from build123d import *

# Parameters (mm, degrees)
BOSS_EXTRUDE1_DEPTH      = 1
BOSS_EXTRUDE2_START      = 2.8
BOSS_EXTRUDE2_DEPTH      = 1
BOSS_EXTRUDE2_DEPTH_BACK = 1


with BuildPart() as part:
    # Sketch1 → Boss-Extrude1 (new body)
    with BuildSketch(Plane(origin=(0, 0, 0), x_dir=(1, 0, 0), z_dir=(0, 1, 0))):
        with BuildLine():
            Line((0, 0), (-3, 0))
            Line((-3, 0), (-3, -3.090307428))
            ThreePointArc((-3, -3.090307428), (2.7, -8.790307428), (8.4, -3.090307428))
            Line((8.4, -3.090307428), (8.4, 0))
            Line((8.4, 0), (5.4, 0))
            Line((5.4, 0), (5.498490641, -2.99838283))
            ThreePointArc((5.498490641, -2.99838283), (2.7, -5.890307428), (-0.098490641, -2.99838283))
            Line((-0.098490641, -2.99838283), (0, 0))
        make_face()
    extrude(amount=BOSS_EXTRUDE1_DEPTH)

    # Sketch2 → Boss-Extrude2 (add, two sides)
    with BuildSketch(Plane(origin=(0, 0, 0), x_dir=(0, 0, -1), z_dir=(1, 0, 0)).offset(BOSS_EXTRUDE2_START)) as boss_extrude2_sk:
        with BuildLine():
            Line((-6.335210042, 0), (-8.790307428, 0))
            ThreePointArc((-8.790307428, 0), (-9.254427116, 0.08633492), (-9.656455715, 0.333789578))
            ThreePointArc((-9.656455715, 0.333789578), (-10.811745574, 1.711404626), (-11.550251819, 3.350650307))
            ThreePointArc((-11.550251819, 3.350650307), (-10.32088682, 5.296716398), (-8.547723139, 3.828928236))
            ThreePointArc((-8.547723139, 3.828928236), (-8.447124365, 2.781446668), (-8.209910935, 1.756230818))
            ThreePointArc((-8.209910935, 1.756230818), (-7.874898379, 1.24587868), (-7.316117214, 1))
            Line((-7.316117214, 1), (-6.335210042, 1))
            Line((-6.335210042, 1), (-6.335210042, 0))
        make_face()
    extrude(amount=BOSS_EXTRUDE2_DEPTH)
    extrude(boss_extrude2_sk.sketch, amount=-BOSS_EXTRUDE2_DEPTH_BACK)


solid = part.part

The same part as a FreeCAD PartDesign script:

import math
import FreeCAD as App
import Part
import Sketcher
Q = App.Units.Quantity

doc = App.newDocument("Part")
body = doc.addObject("PartDesign::Body", "Body")

sketch1 = body.newObject("Sketcher::SketchObject", "Sketch")
sketch1.AttachmentSupport = (doc.getObject("XZ_Plane"), [""])
sketch1.MapMode = "FlatFace"
sketch1.addGeometry([
    Part.LineSegment(App.Vector(0, 0, 0), App.Vector(-3, 0, 0)),
    Part.LineSegment(App.Vector(-3, 0, 0), App.Vector(-3, 3.1, 0)),
    Part.ArcOfCircle(Part.Circle(App.Vector(2.7, 3.1, 0), App.Vector(0, 0, 1), 5.7), math.radians(0), math.radians(180)),
    Part.LineSegment(App.Vector(8.4, 3.1, 0), App.Vector(8.4, 0, 0)),
    Part.LineSegment(App.Vector(8.4, 0, 0), App.Vector(5.4, 0, 0)),
    Part.LineSegment(App.Vector(5.4, 0, 0), App.Vector(5.5, 3, 0)),
    Part.ArcOfCircle(Part.Circle(App.Vector(2.7, 3.1, 0), App.Vector(0, 0, 1), 2.8), math.radians(-2), math.radians(182)),
    Part.LineSegment(App.Vector(-0.1, 3, 0), App.Vector(0, 0, 0)),
], False)
sketch1.addConstraint([
    Sketcher.Constraint("Coincident", 0, 2, 1, 1),
    Sketcher.Constraint("Tangent", 1, 2, 2, 2),
    Sketcher.Constraint("Tangent", 2, 1, 3, 1),
    Sketcher.Constraint("Coincident", 3, 2, 4, 1),
    Sketcher.Constraint("Coincident", 4, 2, 5, 1),
    Sketcher.Constraint("Tangent", 5, 2, 6, 1),
    Sketcher.Constraint("Tangent", 6, 2, 7, 1),
    Sketcher.Constraint("Coincident", 7, 2, 0, 1),
    Sketcher.Constraint("Horizontal", 0),
    Sketcher.Constraint("Vertical", 1),
    Sketcher.Constraint("Vertical", 3),
    Sketcher.Constraint("Horizontal", 4),
    Sketcher.Constraint("Coincident", 7, 2, -1, 1),
    Sketcher.Constraint("Coincident", 6, 3, 2, 3),
    Sketcher.Constraint("PointOnObject", 3, 2, -1),
    Sketcher.Constraint("Horizontal", 5, 2, 6, 2),
    Sketcher.Constraint("Radius", 2, Q("5.7 mm")),
    Sketcher.Constraint("Radius", 6, Q("2.8 mm")),
    Sketcher.Constraint("DistanceX", 0, 2, 0, 1, Q("3 mm")),
    Sketcher.Constraint("Distance", 5, Q("3 mm")),
])
pad1 = body.newObject("PartDesign::Pad", "Pad")
pad1.Profile = sketch1
pad1.Length = 1
pad1.Reversed = True

sketch2 = body.newObject("Sketcher::SketchObject", "Sketch001")
sketch2.AttachmentSupport = (doc.getObject("YZ_Plane"), [""])
sketch2.MapMode = "FlatFace"
sketch2.AttachmentOffset = App.Placement(App.Vector(0, 0, 2.8), App.Rotation())
sketch2.addGeometry([
    Part.LineSegment(App.Vector(0, 8.8, 0), App.Vector(0, 6.3, 0)),
    Part.LineSegment(App.Vector(0, 6.3, 0), App.Vector(1, 6.3, 0)),
    Part.LineSegment(App.Vector(1, 6.3, 0), App.Vector(1, 7.3, 0)),
    Part.ArcOfCircle(Part.Circle(App.Vector(2.1, 7.2, 0), App.Vector(0, 0, 1), 1.1), math.radians(107), math.radians(173)),
    Part.ArcOfCircle(Part.Circle(App.Vector(4.1, 0.6, 0), App.Vector(0, 0, 1), 8), math.radians(91.71), math.radians(106.8)),
    Part.ArcOfCircle(Part.Circle(App.Vector(3.8, 10.1, 0), App.Vector(0, 0, 1), 1.5), math.radians(-88), math.radians(106)),
    Part.ArcOfCircle(Part.Circle(App.Vector(5.2, 5.2, 0), App.Vector(0, 0, 1), 6.6), math.radians(106), math.radians(138)),
    Part.ArcOfCircle(Part.Circle(App.Vector(1.3, 8.8, 0), App.Vector(0, 0, 1), 1.3), math.radians(138), math.radians(180)),
], False)
sketch2.addConstraint([
    Sketcher.Constraint("Coincident", 0, 2, 1, 1),
    Sketcher.Constraint("Coincident", 1, 2, 2, 1),
    Sketcher.Constraint("Coincident", 2, 2, 3, 2),
    Sketcher.Constraint("Tangent", 3, 1, 4, 2),
    Sketcher.Constraint("Tangent", 4, 1, 5, 1),
    Sketcher.Constraint("Tangent", 5, 2, 6, 1),
    Sketcher.Constraint("Tangent", 6, 2, 7, 1),
    Sketcher.Constraint("Tangent", 7, 2, 0, 1),
    Sketcher.Constraint("Vertical", 0),
    Sketcher.Constraint("Horizontal", 1),
    Sketcher.Constraint("Vertical", 2),
    Sketcher.Constraint("PointOnObject", 0, 2, -2),
    Sketcher.Constraint("Radius", 4, Q("8 mm")),
    Sketcher.Constraint("DistanceX", 1, 1, 1, 2, Q("1 mm")),
    Sketcher.Constraint("Radius", 3, Q("1.075788 mm")),
    Sketcher.Constraint("Radius", 5, Q("1.532738 mm")),
    Sketcher.Constraint("Radius", 6, Q("6.568867 mm")),
    Sketcher.Constraint("Radius", 7, Q("1.290676 mm")),
    Sketcher.Constraint("DistanceY", 4, 3, 7, 3, Q("8.239002 mm")),
    Sketcher.Constraint("DistanceY", 1, 2, 3, 1, Q("1.874701 mm")),
    Sketcher.Constraint("DistanceY", 0, 2, 0, 1, Q("2.455097 mm")),
    Sketcher.Constraint("DistanceY", 2, 1, 2, 2, Q("0.980907 mm")),
    Sketcher.Constraint("DistanceY", -1, 1, 3, 3, Q("7.180032 mm")),
    Sketcher.Constraint("DistanceX", -1, 1, 6, 3, Q("5.203842 mm")),
])
pad2 = body.newObject("PartDesign::Pad", "Pad001")
pad2.Profile = sketch2
pad2.Type = "TwoLengths"
pad2.Length = 1
pad2.Length2 = 1

doc.recompute()
